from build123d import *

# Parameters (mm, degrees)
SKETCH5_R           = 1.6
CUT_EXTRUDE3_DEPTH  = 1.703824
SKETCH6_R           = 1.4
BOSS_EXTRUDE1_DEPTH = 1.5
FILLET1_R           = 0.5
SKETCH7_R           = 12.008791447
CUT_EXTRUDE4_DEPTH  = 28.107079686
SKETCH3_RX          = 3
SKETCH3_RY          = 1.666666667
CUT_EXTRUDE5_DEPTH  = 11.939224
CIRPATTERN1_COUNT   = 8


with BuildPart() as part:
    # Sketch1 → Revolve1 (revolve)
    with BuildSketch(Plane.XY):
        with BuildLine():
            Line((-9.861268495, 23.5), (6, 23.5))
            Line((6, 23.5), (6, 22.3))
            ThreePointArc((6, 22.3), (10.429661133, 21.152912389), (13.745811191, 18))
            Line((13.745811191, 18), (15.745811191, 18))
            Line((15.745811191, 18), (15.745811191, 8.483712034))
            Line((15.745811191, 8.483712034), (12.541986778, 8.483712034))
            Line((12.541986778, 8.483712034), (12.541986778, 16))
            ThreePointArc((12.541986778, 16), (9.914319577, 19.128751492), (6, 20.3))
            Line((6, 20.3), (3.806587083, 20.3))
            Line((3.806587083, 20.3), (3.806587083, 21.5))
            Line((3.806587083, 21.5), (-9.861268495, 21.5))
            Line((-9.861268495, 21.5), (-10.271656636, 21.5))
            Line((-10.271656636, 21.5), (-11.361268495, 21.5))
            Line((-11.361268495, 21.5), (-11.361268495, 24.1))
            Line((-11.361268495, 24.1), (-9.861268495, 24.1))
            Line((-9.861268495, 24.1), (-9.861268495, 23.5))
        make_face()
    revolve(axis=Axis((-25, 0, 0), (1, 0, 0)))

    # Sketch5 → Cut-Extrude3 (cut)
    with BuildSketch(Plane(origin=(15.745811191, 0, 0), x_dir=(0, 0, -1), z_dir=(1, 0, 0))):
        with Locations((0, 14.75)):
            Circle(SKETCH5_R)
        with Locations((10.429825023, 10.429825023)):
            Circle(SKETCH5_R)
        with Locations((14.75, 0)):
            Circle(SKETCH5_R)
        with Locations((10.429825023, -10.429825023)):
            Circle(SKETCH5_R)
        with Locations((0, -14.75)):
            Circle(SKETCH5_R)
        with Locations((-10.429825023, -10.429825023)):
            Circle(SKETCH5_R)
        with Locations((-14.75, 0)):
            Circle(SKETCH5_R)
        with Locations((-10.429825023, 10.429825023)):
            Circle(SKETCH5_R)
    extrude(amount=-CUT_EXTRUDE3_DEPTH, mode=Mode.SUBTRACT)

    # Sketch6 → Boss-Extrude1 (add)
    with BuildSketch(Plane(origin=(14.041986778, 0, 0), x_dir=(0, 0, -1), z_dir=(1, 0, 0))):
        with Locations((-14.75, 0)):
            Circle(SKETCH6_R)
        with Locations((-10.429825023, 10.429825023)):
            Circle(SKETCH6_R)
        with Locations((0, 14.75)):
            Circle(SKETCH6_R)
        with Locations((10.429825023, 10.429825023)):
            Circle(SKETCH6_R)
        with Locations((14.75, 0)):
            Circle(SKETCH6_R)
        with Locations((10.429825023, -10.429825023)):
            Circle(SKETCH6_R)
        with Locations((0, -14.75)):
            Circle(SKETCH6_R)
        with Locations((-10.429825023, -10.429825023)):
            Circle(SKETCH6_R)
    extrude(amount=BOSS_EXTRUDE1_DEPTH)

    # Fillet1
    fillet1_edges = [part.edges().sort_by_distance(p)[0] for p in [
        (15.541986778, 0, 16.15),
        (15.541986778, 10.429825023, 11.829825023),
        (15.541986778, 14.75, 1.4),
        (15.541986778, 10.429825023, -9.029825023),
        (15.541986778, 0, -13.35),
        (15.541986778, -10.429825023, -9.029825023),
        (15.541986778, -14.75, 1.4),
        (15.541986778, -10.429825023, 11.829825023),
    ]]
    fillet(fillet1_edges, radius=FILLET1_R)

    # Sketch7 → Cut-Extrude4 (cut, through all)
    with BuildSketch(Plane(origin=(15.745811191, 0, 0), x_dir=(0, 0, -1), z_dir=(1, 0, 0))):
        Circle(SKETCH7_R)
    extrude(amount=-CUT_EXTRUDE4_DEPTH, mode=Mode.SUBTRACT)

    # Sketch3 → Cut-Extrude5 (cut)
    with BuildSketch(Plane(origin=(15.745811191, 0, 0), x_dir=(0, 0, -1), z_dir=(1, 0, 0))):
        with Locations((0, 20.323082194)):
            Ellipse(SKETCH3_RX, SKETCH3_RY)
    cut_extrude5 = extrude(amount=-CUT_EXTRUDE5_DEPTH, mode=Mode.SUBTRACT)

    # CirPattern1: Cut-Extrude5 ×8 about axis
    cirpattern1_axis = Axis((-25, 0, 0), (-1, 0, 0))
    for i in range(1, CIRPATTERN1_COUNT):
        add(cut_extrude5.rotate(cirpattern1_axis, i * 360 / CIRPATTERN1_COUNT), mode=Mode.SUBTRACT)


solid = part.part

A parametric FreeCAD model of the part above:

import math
import FreeCAD as App
import Part
import Sketcher


def edges_at(feature, points):
    """Names of the edges that pass closest to the given points."""
    edges = feature.Shape.Edges
    near = lambda p: min(range(len(edges)), key=lambda i: edges[i].distToShape(Part.Vertex(*p))[0])
    return sorted({f"Edge{near(p) + 1}" for p in points})

doc = App.newDocument("Part")
body = doc.addObject("PartDesign::Body", "Body")

# Sketch on XY plane
sketch1 = body.newObject("Sketcher::SketchObject", "Sketch")
sketch1.AttachmentSupport = (doc.getObject("XY_Plane"), [""])
sketch1.MapMode = "FlatFace"
sketch1.addGeometry(Part.LineSegment(App.Vector(6, 23.5, 0), App.Vector(-9.9, 23.5, 0)), False)
sketch1.addGeometry(Part.LineSegment(App.Vector(-9.9, 23.5, 0), App.Vector(-9.9, 24.1, 0)), False)
sketch1.addGeometry(Part.LineSegment(App.Vector(-9.9, 24.1, 0), App.Vector(-11.4, 24.1, 0)), False)
sketch1.addGeometry(Part.LineSegment(App.Vector(-11.4, 24.1, 0), App.Vector(-11.4, 21.5, 0)), False)
sketch1.addGeometry(Part.LineSegment(App.Vector(-11.4, 21.5, 0), App.Vector(3.8, 21.5, 0)), False)
sketch1.addGeometry(Part.LineSegment(App.Vector(3.8, 21.5, 0), App.Vector(3.8, 20.3, 0)), False)
sketch1.addGeometry(Part.LineSegment(App.Vector(3.8, 20.3, 0), App.Vector(6, 20.3, 0)), False)
sketch1.addGeometry(Part.ArcOfCircle(Part.Circle(App.Vector(6, 13.2, 0), App.Vector(0, 0, 1), 7.1), math.radians(23), math.radians(90)), False)
sketch1.addGeometry(Part.LineSegment(App.Vector(12.5, 16, 0), App.Vector(12.5, 8.5, 0)), False)
sketch1.addGeometry(Part.LineSegment(App.Vector(12.5, 8.5, 0), App.Vector(15.7, 8.5, 0)), False)
sketch1.addGeometry(Part.LineSegment(App.Vector(15.7, 8.5, 0), App.Vector(15.7, 18, 0)), False)
sketch1.addGeometry(Part.LineSegment(App.Vector(15.7, 18, 0), App.Vector(13.7, 18, 0)), False)
sketch1.addGeometry(Part.ArcOfCircle(Part.Circle(App.Vector(6, 13.2, 0), App.Vector(0, 0, 1), 9.1), math.radians(32), math.radians(90)), False)
sketch1.addGeometry(Part.LineSegment(App.Vector(6, 22.3, 0), App.Vector(6, 23.5, 0)), False)
sketch1.addConstraint(Sketcher.Constraint("Coincident", 0, 2, 1, 1))
sketch1.addConstraint(Sketcher.Constraint("Coincident", 1, 2, 2, 1))
sketch1.addConstraint(Sketcher.Constraint("Coincident", 2, 2, 3, 1))
sketch1.addConstraint(Sketcher.Constraint("Coincident", 3, 2, 4, 1))
sketch1.addConstraint(Sketcher.Constraint("Coincident", 4, 2, 5, 1))
sketch1.addConstraint(Sketcher.Constraint("Coincident", 5, 2, 6, 1))
sketch1.addConstraint(Sketcher.Constraint("Tangent", 6, 2, 7, 2))
sketch1.addConstraint(Sketcher.Constraint("Coincident", 7, 1, 8, 1))
sketch1.addConstraint(Sketcher.Constraint("Coincident", 8, 2, 9, 1))
sketch1.addConstraint(Sketcher.Constraint("Coincident", 9, 2, 10, 1))
sketch1.addConstraint(Sketcher.Constraint("Coincident", 10, 2, 11, 1))
sketch1.addConstraint(Sketcher.Constraint("Coincident", 11, 2, 12, 1))
sketch1.addConstraint(Sketcher.Constraint("Coincident", 12, 2, 13, 1))
sketch1.addConstraint(Sketcher.Constraint("Coincident", 13, 2, 0, 1))
sketch1.addConstraint(Sketcher.Constraint("Horizontal", 0))
sketch1.addConstraint(Sketcher.Constraint("Vertical", 1))
sketch1.addConstraint(Sketcher.Constraint("Horizontal", 2))
sketch1.addConstraint(Sketcher.Constraint("Vertical", 3))
sketch1.addConstraint(Sketcher.Constraint("Horizontal", 4))
sketch1.addConstraint(Sketcher.Constraint("Vertical", 5))
sketch1.addConstraint(Sketcher.Constraint("Horizontal", 6))
sketch1.addConstraint(Sketcher.Constraint("Vertical", 8))
sketch1.addConstraint(Sketcher.Constraint("Horizontal", 9))
sketch1.addConstraint(Sketcher.Constraint("Vertical", 10))
sketch1.addConstraint(Sketcher.Constraint("Horizontal", 11))
sketch1.addConstraint(Sketcher.Constraint("Vertical", 13))
sketch1.addConstraint(Sketcher.Constraint("Coincident", 12, 3, 7, 3))
sketch1.addConstraint(Sketcher.Constraint("Vertical", 6, 2, 12, 2))
sketch1.addConstraint(Sketcher.Constraint("Equal", 5, 13))
sketch1.addConstraint(Sketcher.Constraint("DistanceX", 11, 2, 11, 1, 2.0))
sketch1.addConstraint(Sketcher.Constraint("DistanceX", 2, 2, 2, 1, 1.5))
sketch1.addConstraint(Sketcher.Constraint("DistanceY", 1, 1, 1, 2, 0.6))
sketch1.addConstraint(Sketcher.Constraint("DistanceY", 3, 2, 3, 1, 2.6))
sketch1.addConstraint(Sketcher.Constraint("DistanceY", 5, 2, 5, 1, 1.2))
sketch1.addConstraint(Sketcher.Constraint("DistanceX", -1, 1, 7, 3, 6.0))
sketch1.addConstraint(Sketcher.Constraint("DistanceY", -1, 1, 7, 1, 16.0))
sketch1.addConstraint(Sketcher.Constraint("DistanceY", -1, 1, 10, 2, 18.0))
sketch1.addConstraint(Sketcher.Constraint("DistanceY", -1, 1, 0, 2, 23.5))
sketch1.addConstraint(Sketcher.Constraint("Radius", 7, 7.126464))
sketch1.addConstraint(Sketcher.Constraint("DistanceX", 0, 2, 0, 1, 15.861268))
sketch1.addConstraint(Sketcher.Constraint("DistanceX", 5, 2, 7, 1, 8.7354))
sketch1.addConstraint(Sketcher.Constraint("DistanceY", 8, 2, 8, 1, 7.516288))
revolution = body.newObject("PartDesign::Revolution", "Revolution")
revolution.Profile = sketch1
revolution.ReferenceAxis = (sketch1, ["H_Axis"])
revolution.Angle = 360

# Sketch on YZ plane
sketch2 = body.newObject("Sketcher::SketchObject", "Sketch001")
sketch2.AttachmentSupport = (doc.getObject("YZ_Plane"), [""])
sketch2.MapMode = "FlatFace"
sketch2.AttachmentOffset = App.Placement(App.Vector(0, 0, 15.745811), App.Rotation())
sketch2.addGeometry(Part.Circle(App.Vector(14.8, 0, 0), App.Vector(0, 0, 1), 1.6), False)
sketch2.addGeometry(Part.Circle(App.Vector(10.4, -10.4, 0), App.Vector(0, 0, 1), 1.6), False)
sketch2.addGeometry(Part.Circle(App.Vector(0, -14.8, 0), App.Vector(0, 0, 1), 1.6), False)
sketch2.addGeometry(Part.Circle(App.Vector(-10.4, -10.4, 0), App.Vector(0, 0, 1), 1.6), False)
sketch2.addGeometry(Part.Circle(App.Vector(-14.8, 0, 0), App.Vector(0, 0, 1), 1.6), False)
sketch2.addGeometry(Part.Circle(App.Vector(-10.4, 10.4, 0), App.Vector(0, 0, 1), 1.6), False)
sketch2.addGeometry(Part.Circle(App.Vector(0, 14.8, 0), App.Vector(0, 0, 1), 1.6), False)
sketch2.addGeometry(Part.Circle(App.Vector(10.4, 10.4, 0), App.Vector(0, 0, 1), 1.6), False)
sketch2.addConstraint(Sketcher.Constraint("Equal", 0, 1))
sketch2.addConstraint(Sketcher.Constraint("Equal", 1, 2))
sketch2.addConstraint(Sketcher.Constraint("Equal", 2, 3))
sketch2.addConstraint(Sketcher.Constraint("Equal", 3, 4))
sketch2.addConstraint(Sketcher.Constraint("Equal", 4, 5))
sketch2.addConstraint(Sketcher.Constraint("Equal", 5, 6))
sketch2.addConstraint(Sketcher.Constraint("Equal", 6, 7))
sketch2.addConstraint(Sketcher.Constraint("Symmetric", 0, 3, 4, 3, -1, 1))
sketch2.addConstraint(Sketcher.Constraint("Symmetric", 1, 3, 5, 3, -1, 1))
sketch2.addConstraint(Sketcher.Constraint("Symmetric", 2, 3, 6, 3, -1, 1))
sketch2.addConstraint(Sketcher.Constraint("Symmetric", 3, 3, 7, 3, -1, 1))
sketch2.addConstraint(Sketcher.Constraint("Symmetric", 1, 3, 3, 3, -2))
sketch2.addConstraint(Sketcher.Constraint("PointOnObject", 0, 3, -1))
sketch2.addConstraint(Sketcher.Constraint("PointOnObject", 2, 3, -2))
sketch2.addConstraint(Sketcher.Constraint("Diameter", 0, 3.2))
sketch2.addConstraint(Sketcher.Constraint("DistanceX", 4, 3, 0, 3, 29.5))
sketch2.addConstraint(Sketcher.Constraint("DistanceY", 2, 3, -1, 1, 14.75))
sketch2.addConstraint(Sketcher.Constraint("DistanceX", 3, 3, 1, 3, 20.85965))
sketch2.addConstraint(Sketcher.Constraint("DistanceY", 3, 3, 5, 3, 20.85965))
pocket1 = body.newObject("PartDesign::Pocket", "Pocket")
pocket1.Profile = sketch2
pocket1.Length = 1.703824

# Sketch on YZ plane
sketch3 = body.newObject("Sketcher::SketchObject", "Sketch002")
sketch3.AttachmentSupport = (doc.getObject("YZ_Plane"), [""])
sketch3.MapMode = "FlatFace"
sketch3.AttachmentOffset = App.Placement(App.Vector(0, 0, 14.041987), App.Rotation())
sketch3.addGeometry(Part.Circle(App.Vector(0, 14.8, 0), App.Vector(0, 0, 1), 1.4), False)
sketch3.addGeometry(Part.Circle(App.Vector(10.4, 10.4, 0), App.Vector(0, 0, 1), 1.4), False)
sketch3.addGeometry(Part.Circle(App.Vector(14.8, 0, 0), App.Vector(0, 0, 1), 1.4), False)
sketch3.addGeometry(Part.Circle(App.Vector(10.4, -10.4, 0), App.Vector(0, 0, 1), 1.4), False)
sketch3.addGeometry(Part.Circle(App.Vector(0, -14.8, 0), App.Vector(0, 0, 1), 1.4), False)
sketch3.addGeometry(Part.Circle(App.Vector(-10.4, -10.4, 0), App.Vector(0, 0, 1), 1.4), False)
sketch3.addGeometry(Part.Circle(App.Vector(-14.8, 0, 0), App.Vector(0, 0, 1), 1.4), False)
sketch3.addGeometry(Part.Circle(App.Vector(-10.4, 10.4, 0), App.Vector(0, 0, 1), 1.4), False)
sketch3.addConstraint(Sketcher.Constraint("Equal", 0, 1))
sketch3.addConstraint(Sketcher.Constraint("Equal", 1, 2))
sketch3.addConstraint(Sketcher.Constraint("Equal", 2, 3))
sketch3.addConstraint(Sketcher.Constraint("Equal", 3, 4))
sketch3.addConstraint(Sketcher.Constraint("Equal", 4, 5))
sketch3.addConstraint(Sketcher.Constraint("Equal", 5, 6))
sketch3.addConstraint(Sketcher.Constraint("Equal", 6, 7))
sketch3.addConstraint(Sketcher.Constraint("Symmetric", 0, 3, 4, 3, -1, 1))
sketch3.addConstraint(Sketcher.Constraint("Symmetric", 1, 3, 5, 3, -1, 1))
sketch3.addConstraint(Sketcher.Constraint("Symmetric", 2, 3, 6, 3, -1, 1))
sketch3.addConstraint(Sketcher.Constraint("Symmetric", 3, 3, 7, 3, -1, 1))
sketch3.addConstraint(Sketcher.Constraint("Symmetric", 3, 3, 5, 3, -2))
sketch3.addConstraint(Sketcher.Constraint("PointOnObject", 0, 3, -2))
sketch3.addConstraint(Sketcher.Constraint("PointOnObject", 2, 3, -1))
sketch3.addConstraint(Sketcher.Constraint("Diameter", 0, 2.8))
sketch3.addConstraint(Sketcher.Constraint("DistanceY", 4, 3, 0, 3, 29.5))
sketch3.addConstraint(Sketcher.Constraint("DistanceX", -1, 1, 2, 3, 14.75))
sketch3.addConstraint(Sketcher.Constraint("DistanceY", 3, 3, 1, 3, 20.85965))
sketch3.addConstraint(Sketcher.Constraint("DistanceX", 5, 3, 3, 3, 20.85965))
pad1 = body.newObject("PartDesign::Pad", "Pad")
pad1.Profile = sketch3
pad1.Length = 1.5
doc.recompute()

fillet = body.newObject("PartDesign::Fillet", "Fillet")
fillet.Base = (pad1, edges_at(pad1, [
    (15.542, 0, 16.15),
    (15.542, 10.43, 11.83),
    (15.542, 14.75, 1.4),
    (15.542, 10.43, -9.03),
    (15.542, 0, -13.35),
    (15.542, -10.43, -9.03),
    (15.542, -14.75, 1.4),
    (15.542, -10.43, 11.83),
]))
fillet.Radius = 0.5

# Sketch on YZ plane
sketch4 = body.newObject("Sketcher::SketchObject", "Sketch003")
sketch4.AttachmentSupport = (doc.getObject("YZ_Plane"), [""])
sketch4.MapMode = "FlatFace"
sketch4.AttachmentOffset = App.Placement(App.Vector(0, 0, 15.745811), App.Rotation())
sketch4.addGeometry(Part.Circle(App.Vector(0, 0, 0), App.Vector(0, 0, 1), 12), False)
sketch4.addConstraint(Sketcher.Constraint("Coincident", 0, 3, -1, 1))
sketch4.addConstraint(Sketcher.Constraint("Diameter", 0, 24.017583))
pocket2 = body.newObject("PartDesign::Pocket", "Pocket001")
pocket2.Profile = sketch4
pocket2.Type = "ThroughAll"

# Sketch on YZ plane
sketch5 = body.newObject("Sketcher::SketchObject", "Sketch004")
sketch5.AttachmentSupport = (doc.getObject("YZ_Plane"), [""])
sketch5.MapMode = "FlatFace"
sketch5.AttachmentOffset = App.Placement(App.Vector(0, 0, 15.745811), App.Rotation())
sketch5.addGeometry(Part.Ellipse(App.Vector(20.323082, -3, 0), App.Vector(21.989749, 0, 0), App.Vector(20.323082, 0, 0)), False)
sketch5.addConstraint(Sketcher.Constraint("Block", 0))
pocket3 = body.newObject("PartDesign::Pocket", "Pocket002")
pocket3.Profile = sketch5
pocket3.Length = 11.939224
doc.recompute()

polarpattern = body.newObject("PartDesign::PolarPattern", "PolarPattern")
polarpattern.Originals = [pocket3]
polarpattern.Axis = (doc.getObject("X_Axis"), [""])
polarpattern.Angle = 360
polarpattern.Occurrences = 8
body.Tip = polarpattern

doc.recompute()
